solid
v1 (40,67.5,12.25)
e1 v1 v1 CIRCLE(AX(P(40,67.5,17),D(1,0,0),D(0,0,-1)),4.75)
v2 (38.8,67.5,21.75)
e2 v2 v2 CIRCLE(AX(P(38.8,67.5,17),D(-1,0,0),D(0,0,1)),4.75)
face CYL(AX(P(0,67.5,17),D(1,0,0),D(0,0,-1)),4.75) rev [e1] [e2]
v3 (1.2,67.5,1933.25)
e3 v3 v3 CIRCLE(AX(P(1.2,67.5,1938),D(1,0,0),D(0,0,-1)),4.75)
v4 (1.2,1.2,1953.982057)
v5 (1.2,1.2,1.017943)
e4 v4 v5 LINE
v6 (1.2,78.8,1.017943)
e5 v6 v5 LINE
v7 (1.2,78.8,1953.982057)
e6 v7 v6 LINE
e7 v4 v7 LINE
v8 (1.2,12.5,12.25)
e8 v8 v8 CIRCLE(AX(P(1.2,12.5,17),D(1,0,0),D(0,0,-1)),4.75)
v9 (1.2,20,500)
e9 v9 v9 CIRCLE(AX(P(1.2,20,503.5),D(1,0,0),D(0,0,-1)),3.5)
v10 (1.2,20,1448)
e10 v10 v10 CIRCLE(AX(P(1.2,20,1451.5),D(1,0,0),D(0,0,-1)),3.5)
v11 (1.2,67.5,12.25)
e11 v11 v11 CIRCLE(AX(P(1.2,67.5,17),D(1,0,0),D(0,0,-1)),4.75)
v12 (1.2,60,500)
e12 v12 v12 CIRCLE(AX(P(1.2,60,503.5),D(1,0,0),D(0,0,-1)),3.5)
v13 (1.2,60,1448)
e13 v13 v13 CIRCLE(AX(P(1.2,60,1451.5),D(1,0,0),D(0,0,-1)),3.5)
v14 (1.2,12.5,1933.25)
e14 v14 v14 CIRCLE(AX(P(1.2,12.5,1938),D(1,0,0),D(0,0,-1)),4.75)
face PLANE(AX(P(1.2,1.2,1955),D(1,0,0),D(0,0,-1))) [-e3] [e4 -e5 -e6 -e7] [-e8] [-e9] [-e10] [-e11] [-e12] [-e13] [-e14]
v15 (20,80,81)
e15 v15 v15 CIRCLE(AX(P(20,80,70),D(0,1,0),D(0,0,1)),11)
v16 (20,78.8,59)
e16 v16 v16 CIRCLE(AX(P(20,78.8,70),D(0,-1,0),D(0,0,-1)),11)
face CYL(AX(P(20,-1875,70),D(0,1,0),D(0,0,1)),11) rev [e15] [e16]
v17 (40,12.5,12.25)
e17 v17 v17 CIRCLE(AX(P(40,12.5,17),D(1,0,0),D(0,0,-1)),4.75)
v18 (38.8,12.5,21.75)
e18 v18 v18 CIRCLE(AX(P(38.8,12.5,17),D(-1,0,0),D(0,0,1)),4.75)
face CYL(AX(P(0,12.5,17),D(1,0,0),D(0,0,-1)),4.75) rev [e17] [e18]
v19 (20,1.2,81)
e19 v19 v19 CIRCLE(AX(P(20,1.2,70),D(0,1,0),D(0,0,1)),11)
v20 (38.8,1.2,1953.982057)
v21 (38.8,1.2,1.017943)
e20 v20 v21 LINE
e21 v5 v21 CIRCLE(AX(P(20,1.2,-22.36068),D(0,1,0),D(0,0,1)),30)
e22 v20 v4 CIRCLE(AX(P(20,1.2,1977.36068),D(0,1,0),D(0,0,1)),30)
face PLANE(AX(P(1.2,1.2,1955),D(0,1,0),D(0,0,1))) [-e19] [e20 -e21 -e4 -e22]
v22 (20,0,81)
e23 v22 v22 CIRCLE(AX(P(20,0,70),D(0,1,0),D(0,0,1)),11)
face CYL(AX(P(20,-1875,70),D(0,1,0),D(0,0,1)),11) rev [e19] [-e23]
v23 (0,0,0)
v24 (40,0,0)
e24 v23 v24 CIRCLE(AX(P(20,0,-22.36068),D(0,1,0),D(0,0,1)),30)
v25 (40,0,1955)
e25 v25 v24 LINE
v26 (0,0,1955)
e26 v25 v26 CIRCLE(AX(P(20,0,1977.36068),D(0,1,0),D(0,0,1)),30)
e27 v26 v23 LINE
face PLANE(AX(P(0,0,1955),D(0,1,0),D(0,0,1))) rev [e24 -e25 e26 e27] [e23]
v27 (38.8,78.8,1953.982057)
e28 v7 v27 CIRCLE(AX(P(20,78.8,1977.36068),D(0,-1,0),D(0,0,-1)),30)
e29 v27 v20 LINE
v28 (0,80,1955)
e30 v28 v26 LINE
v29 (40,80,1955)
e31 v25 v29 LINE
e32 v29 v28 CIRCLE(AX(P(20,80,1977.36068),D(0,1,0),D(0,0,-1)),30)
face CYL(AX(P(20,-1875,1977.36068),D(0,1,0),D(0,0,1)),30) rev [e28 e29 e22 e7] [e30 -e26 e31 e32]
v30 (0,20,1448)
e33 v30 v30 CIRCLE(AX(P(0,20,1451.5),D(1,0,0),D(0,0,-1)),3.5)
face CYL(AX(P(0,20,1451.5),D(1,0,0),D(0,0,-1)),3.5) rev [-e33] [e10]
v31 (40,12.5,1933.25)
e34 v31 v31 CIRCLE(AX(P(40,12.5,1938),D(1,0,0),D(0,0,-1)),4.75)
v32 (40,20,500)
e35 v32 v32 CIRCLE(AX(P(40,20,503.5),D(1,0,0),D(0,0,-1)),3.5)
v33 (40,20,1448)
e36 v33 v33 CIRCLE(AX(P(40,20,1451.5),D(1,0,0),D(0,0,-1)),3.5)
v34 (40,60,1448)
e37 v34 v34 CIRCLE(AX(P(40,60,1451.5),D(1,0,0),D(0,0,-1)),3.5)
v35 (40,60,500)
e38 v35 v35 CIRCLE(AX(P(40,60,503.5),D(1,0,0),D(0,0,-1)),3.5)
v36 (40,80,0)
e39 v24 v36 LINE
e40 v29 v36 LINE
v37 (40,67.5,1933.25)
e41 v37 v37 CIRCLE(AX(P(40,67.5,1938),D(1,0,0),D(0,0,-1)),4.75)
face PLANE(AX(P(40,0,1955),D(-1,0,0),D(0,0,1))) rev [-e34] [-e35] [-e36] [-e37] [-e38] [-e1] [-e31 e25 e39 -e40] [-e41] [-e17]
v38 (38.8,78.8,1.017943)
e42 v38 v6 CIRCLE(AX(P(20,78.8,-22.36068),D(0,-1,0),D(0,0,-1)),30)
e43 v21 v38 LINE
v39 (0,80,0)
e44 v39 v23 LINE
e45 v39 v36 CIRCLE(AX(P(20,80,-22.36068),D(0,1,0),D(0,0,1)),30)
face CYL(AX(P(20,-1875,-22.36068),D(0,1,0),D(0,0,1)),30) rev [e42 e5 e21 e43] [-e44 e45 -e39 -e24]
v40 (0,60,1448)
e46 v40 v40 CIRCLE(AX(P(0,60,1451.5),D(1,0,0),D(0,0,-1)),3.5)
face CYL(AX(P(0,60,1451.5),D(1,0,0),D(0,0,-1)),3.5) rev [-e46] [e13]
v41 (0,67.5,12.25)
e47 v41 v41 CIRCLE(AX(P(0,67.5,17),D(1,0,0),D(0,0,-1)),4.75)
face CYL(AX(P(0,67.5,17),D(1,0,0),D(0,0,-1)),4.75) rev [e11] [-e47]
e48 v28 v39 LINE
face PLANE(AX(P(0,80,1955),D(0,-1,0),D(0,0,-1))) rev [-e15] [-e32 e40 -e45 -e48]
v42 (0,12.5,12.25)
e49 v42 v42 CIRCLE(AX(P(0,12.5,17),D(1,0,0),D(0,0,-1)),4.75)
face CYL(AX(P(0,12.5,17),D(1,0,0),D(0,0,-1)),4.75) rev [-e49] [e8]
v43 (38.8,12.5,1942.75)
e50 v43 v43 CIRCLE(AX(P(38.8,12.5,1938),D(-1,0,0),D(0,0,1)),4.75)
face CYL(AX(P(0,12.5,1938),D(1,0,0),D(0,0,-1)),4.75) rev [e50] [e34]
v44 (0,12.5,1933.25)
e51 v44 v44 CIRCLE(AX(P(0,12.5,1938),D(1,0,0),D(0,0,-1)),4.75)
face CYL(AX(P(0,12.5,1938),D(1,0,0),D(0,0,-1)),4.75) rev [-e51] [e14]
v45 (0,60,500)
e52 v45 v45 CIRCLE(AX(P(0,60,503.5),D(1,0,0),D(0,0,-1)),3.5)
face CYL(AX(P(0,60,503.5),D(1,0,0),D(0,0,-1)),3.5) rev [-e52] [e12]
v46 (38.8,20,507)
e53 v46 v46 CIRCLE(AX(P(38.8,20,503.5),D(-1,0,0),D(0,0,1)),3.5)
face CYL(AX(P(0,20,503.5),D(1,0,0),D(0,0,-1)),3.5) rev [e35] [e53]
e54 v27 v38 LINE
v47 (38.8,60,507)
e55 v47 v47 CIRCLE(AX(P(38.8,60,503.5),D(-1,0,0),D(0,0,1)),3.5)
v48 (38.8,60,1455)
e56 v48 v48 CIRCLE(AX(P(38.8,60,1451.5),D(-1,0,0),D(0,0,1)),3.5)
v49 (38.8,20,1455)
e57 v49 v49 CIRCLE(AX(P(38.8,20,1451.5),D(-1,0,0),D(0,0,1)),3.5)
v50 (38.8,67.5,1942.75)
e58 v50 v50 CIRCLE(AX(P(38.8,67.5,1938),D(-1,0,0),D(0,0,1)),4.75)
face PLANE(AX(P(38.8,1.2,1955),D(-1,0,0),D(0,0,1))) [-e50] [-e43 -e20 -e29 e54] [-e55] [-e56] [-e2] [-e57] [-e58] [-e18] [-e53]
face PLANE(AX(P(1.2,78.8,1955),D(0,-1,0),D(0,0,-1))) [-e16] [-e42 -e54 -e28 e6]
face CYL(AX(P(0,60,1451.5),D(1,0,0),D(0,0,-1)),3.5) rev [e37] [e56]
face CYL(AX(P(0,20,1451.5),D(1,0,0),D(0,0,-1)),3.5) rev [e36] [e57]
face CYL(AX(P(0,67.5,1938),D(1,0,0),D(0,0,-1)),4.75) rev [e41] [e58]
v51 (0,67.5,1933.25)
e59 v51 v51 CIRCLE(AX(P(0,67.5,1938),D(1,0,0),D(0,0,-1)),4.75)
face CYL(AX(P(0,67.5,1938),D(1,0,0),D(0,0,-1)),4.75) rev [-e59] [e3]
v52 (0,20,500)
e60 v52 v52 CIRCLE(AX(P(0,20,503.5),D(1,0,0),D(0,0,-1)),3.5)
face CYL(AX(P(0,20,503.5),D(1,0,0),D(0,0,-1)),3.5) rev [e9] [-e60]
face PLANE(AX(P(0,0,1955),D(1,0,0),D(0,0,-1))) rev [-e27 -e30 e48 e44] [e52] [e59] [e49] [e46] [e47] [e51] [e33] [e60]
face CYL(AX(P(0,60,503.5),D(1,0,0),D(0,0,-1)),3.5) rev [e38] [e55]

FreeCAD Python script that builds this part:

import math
import FreeCAD as App
import Part
import Sketcher

V = App.Vector
Q = App.Units.Quantity

doc = App.newDocument("Part")
params = doc.addObject("Spreadsheet::Sheet", "Params")
for row, (alias, value) in enumerate([
    ("sketch1_width", "40 mm"),
    ("sketch1_height", "80 mm"),
    ("sketch1_width2", "37.6 mm"),
    ("sketch1_height2", "77.6 mm"),
    ("pad1_length", "1955 mm"),
    ("sketch2_diameter", "22 mm"),
    ("sketch2_radius", "30 mm"),
    ("sketch2_width", "40 mm"),
    ("pocket1_length", "1955 mm"),
    ("sketch3_diameter", "9.5 mm"),
    ("sketch4_diameter", "7 mm"),
], start=1):
    params.set(f"A{row}", alias)
    params.set(f"B{row}", "=" + value)
    params.setAlias(f"B{row}", alias)

body = doc.addObject("PartDesign::Body", "Body")

# Sketch on XY plane
sketch1 = body.newObject("Sketcher::SketchObject", "Sketch")
sketch1.AttachmentSupport = (doc.getObject("XY_Plane"), [""])
sketch1.MapMode = "FlatFace"
sketch1.addGeometry([
    Part.LineSegment(V(0, 80, 0), V(0, 0, 0)),  # 0
    Part.LineSegment(V(0, 0, 0), V(40, 0, 0)),  # 1
    Part.LineSegment(V(40, 0, 0), V(40, 80, 0)),  # 2
    Part.LineSegment(V(40, 80, 0), V(0, 80, 0)),  # 3
    Part.LineSegment(V(38.8, 1.2, 0), V(1.2, 1.2, 0)),  # 4
    Part.LineSegment(V(1.2, 1.2, 0), V(1.2, 78.8, 0)),  # 5
    Part.LineSegment(V(1.2, 78.8, 0), V(38.8, 78.8, 0)),  # 6
    Part.LineSegment(V(38.8, 78.8, 0), V(38.8, 1.2, 0)),  # 7
], False)
sketch1.addConstraint([
    Sketcher.Constraint("Coincident", 0, 2, 1, 1),
    Sketcher.Constraint("Coincident", 1, 2, 2, 1),
    Sketcher.Constraint("Coincident", 2, 2, 3, 1),
    Sketcher.Constraint("Coincident", 3, 2, 0, 1),
    Sketcher.Constraint("Coincident", 4, 2, 5, 1),
    Sketcher.Constraint("Coincident", 5, 2, 6, 1),
    Sketcher.Constraint("Coincident", 6, 2, 7, 1),
    Sketcher.Constraint("Coincident", 7, 2, 4, 1),
    Sketcher.Constraint("Vertical", 0),
    Sketcher.Constraint("Horizontal", 1),
    Sketcher.Constraint("Vertical", 2),
    Sketcher.Constraint("Horizontal", 3),
    Sketcher.Constraint("Horizontal", 4),
    Sketcher.Constraint("Vertical", 5),
    Sketcher.Constraint("Horizontal", 6),
    Sketcher.Constraint("Vertical", 7),
    Sketcher.Constraint("Coincident", 0, 2, -1, 1),
    Sketcher.Constraint("DistanceX", 1, 1, 1, 2, Q("40 mm")),
    Sketcher.Constraint("DistanceY", 0, 2, 0, 1, Q("80 mm")),
    Sketcher.Constraint("DistanceX", 4, 2, 4, 1, Q("37.6 mm")),
    Sketcher.Constraint("DistanceY", 5, 1, 5, 2, Q("77.6 mm")),
    Sketcher.Constraint("DistanceX", -1, 1, 4, 2, Q("1.2 mm")),
    Sketcher.Constraint("DistanceY", -1, 1, 4, 2, Q("1.2 mm")),
])
sketch1.setExpression("Constraints[17]", "Params.sketch1_width")
sketch1.setExpression("Constraints[18]", "Params.sketch1_height")
sketch1.setExpression("Constraints[19]", "Params.sketch1_width2")
sketch1.setExpression("Constraints[20]", "Params.sketch1_height2")
pad1 = body.newObject("PartDesign::Pad", "Pad")
pad1.Profile = sketch1
pad1.setExpression("Length", "Params.pad1_length")

# Sketch on XZ plane
sketch2 = body.newObject("Sketcher::SketchObject", "Sketch001")
sketch2.AttachmentSupport = (doc.getObject("XZ_Plane"), [""])
sketch2.MapMode = "FlatFace"
sketch2.AttachmentOffset = App.Placement(V(0, 0, -80), App.Rotation())
sketch2.addGeometry([
    Part.Circle(V(20, 70, 0), V(0, 0, 1), 11),  # 0
    Part.LineSegment(V(40, 0, 0), V(0, 0, 0)),  # 1
    Part.ArcOfCircle(Part.Circle(V(20, -22.36068, 0), V(0, 0, 1), 30), math.radians(48.189685), math.radians(131.810315)),  # 2
    Part.LineSegment(V(0, 1955, 0), V(40, 1955, 0)),  # 3
    Part.ArcOfCircle(Part.Circle(V(20, 1977.36068, 0), V(0, 0, 1), 30), math.radians(-131.810315), math.radians(-48.189685)),  # 4
], False)
sketch2.addConstraint([
    Sketcher.Constraint("Coincident", 1, 1, 2, 1),
    Sketcher.Constraint("Coincident", 2, 2, 1, 2),
    Sketcher.Constraint("Coincident", 3, 1, 4, 1),
    Sketcher.Constraint("Coincident", 4, 2, 3, 2),
    Sketcher.Constraint("Horizontal", 1),
    Sketcher.Constraint("Horizontal", 3),
    Sketcher.Constraint("Coincident", 2, 2, -1, 1),
    Sketcher.Constraint("Equal", 2, 4),
    Sketcher.Constraint("PointOnObject", 3, 1, -2),
    Sketcher.Constraint("Vertical", 0, 3, 2, 3),
    Sketcher.Constraint("Vertical", 2, 3, 4, 3),
    Sketcher.Constraint("Diameter", 0, Q("22 mm")),
    Sketcher.Constraint("Radius", 2, Q("30 mm")),
    Sketcher.Constraint("DistanceX", 1, 2, 1, 1, Q("40 mm")),
    Sketcher.Constraint("DistanceY", -1, 1, 0, 3, Q("70 mm")),
    Sketcher.Constraint("DistanceY", -1, 1, 3, 1, Q("1955 mm")),
])
sketch2.setExpression("Constraints[11]", "Params.sketch2_diameter")
sketch2.setExpression("Constraints[12]", "Params.sketch2_radius")
sketch2.setExpression("Constraints[13]", "Params.sketch2_width")
pocket1 = body.newObject("PartDesign::Pocket", "Pocket")
pocket1.Profile = sketch2
pocket1.setExpression("Length", "Params.pocket1_length")
pocket1.Reversed = True

# Sketch on YZ plane
sketch3 = body.newObject("Sketcher::SketchObject", "Sketch002")
sketch3.AttachmentSupport = (doc.getObject("YZ_Plane"), [""])
sketch3.MapMode = "FlatFace"
sketch3.AttachmentOffset = App.Placement(V(0, 0, 40), App.Rotation())
sketch3.addGeometry([
    Part.Circle(V(67.5, 17, 0), V(0, 0, 1), 4.75),
    Part.Circle(V(12.5, 17, 0), V(0, 0, 1), 4.75),
    Part.Circle(V(67.5, 1938, 0), V(0, 0, 1), 4.75),
    Part.Circle(V(12.5, 1938, 0), V(0, 0, 1), 4.75),
], False)
sketch3.addConstraint([
    Sketcher.Constraint("Equal", 0, 1),
    Sketcher.Constraint("Equal", 1, 2),
    Sketcher.Constraint("Equal", 2, 3),
    Sketcher.Constraint("Horizontal", 0, 3, 1, 3),
    Sketcher.Constraint("Horizontal", 2, 3, 3, 3),
    Sketcher.Constraint("Vertical", 0, 3, 2, 3),
    Sketcher.Constraint("Vertical", 1, 3, 3, 3),
    Sketcher.Constraint("Diameter", 0, Q("9.5 mm")),
    Sketcher.Constraint("DistanceY", -1, 1, 0, 3, Q("17 mm")),
    Sketcher.Constraint("DistanceY", -1, 1, 2, 3, Q("1938 mm")),
    Sketcher.Constraint("DistanceX", 1, 3, 0, 3, Q("55 mm")),
    Sketcher.Constraint("DistanceX", -1, 1, 0, 3, Q("67.5 mm")),
])
sketch3.setExpression("Constraints[7]", "Params.sketch3_diameter")
pocket2 = body.newObject("PartDesign::Pocket", "Pocket001")
pocket2.Profile = sketch3
pocket2.Type = "ThroughAll"

# Sketch on YZ plane
sketch4 = body.newObject("Sketcher::SketchObject", "Sketch003")
sketch4.AttachmentSupport = (doc.getObject("YZ_Plane"), [""])
sketch4.MapMode = "FlatFace"
sketch4.AttachmentOffset = App.Placement(V(0, 0, 40), App.Rotation())
sketch4.addGeometry([
    Part.Circle(V(60, 1451.5, 0), V(0, 0, 1), 3.5),
    Part.Circle(V(20, 1451.5, 0), V(0, 0, 1), 3.5),
    Part.Circle(V(60, 503.5, 0), V(0, 0, 1), 3.5),
    Part.Circle(V(20, 503.5, 0), V(0, 0, 1), 3.5),
], False)
sketch4.addConstraint([
    Sketcher.Constraint("Equal", 0, 1),
    Sketcher.Constraint("Equal", 1, 2),
    Sketcher.Constraint("Equal", 2, 3),
    Sketcher.Constraint("Horizontal", 0, 3, 1, 3),
    Sketcher.Constraint("Horizontal", 2, 3, 3, 3),
    Sketcher.Constraint("Vertical", 0, 3, 2, 3),
    Sketcher.Constraint("Vertical", 1, 3, 3, 3),
    Sketcher.Constraint("Diameter", 0, Q("7 mm")),
    Sketcher.Constraint("DistanceX", -1, 1, 0, 3, Q("60 mm")),
    Sketcher.Constraint("DistanceX", -1, 1, 1, 3, Q("20 mm")),
    Sketcher.Constraint("DistanceY", 2, 3, 0, 3, Q("948 mm")),
    Sketcher.Constraint("DistanceY", -1, 1, 0, 3, Q("1451.5 mm")),
])
sketch4.setExpression("Constraints[7]", "Params.sketch4_diameter")
pocket3 = body.newObject("PartDesign::Pocket", "Pocket002")
pocket3.Profile = sketch4
pocket3.Type = "ThroughAll"

doc.recompute()
